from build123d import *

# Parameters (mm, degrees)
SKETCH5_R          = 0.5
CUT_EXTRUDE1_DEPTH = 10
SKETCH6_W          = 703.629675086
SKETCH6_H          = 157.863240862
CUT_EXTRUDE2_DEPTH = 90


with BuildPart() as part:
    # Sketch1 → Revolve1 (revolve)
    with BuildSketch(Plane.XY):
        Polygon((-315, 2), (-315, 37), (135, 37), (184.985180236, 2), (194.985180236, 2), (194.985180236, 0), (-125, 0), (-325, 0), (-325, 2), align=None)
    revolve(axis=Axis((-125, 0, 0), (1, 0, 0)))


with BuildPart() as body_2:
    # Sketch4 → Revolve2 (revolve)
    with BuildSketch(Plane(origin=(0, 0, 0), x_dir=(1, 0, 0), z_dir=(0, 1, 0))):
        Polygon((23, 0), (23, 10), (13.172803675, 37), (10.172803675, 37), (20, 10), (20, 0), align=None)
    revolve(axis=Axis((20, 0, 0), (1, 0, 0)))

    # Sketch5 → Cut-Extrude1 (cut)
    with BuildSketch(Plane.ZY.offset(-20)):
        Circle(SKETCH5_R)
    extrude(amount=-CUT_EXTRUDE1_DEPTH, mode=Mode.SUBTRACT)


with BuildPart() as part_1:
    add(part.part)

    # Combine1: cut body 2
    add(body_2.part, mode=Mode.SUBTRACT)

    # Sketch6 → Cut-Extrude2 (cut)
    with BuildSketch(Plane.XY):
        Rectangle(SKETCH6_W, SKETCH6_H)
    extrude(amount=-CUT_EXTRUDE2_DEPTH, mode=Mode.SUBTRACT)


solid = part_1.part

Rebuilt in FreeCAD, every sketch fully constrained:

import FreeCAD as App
import Part
import Sketcher

V = App.Vector
Q = App.Units.Quantity


def add_polygon(sketch, points):
    """Adds a closed chain of lines whose ends are joined by coincident constraints."""
    first, n = sketch.GeometryCount, len(points)
    for a, b in zip(points, points[1:] + points[:1]):
        sketch.addGeometry(Part.LineSegment(App.Vector(*a, 0), App.Vector(*b, 0)), False)
    for i in range(n):
        sketch.addConstraint(Sketcher.Constraint("Coincident", first + i, 2, first + (i + 1) % n, 1))

doc = App.newDocument("Part")
params = doc.addObject("Spreadsheet::Sheet", "Params")
for row, (alias, value) in enumerate([
    ("sketch1_width", "10 mm"),
    ("sketch1_width2", "450 mm"),
    ("sketch1_height", "35 mm"),
    ("sketch1_height2", "2 mm"),
    ("revolution_angle", "360 deg"),
    ("sketch2_width", "3 mm"),
    ("sketch2_height", "10 mm"),
    ("revolution2_angle", "360 deg"),
    ("sketch3_diameter", "1 mm"),
    ("pocket1_length", "10 mm"),
    ("pocket2_length", "90 mm"),
], start=1):
    params.set(f"A{row}", alias)
    params.set(f"B{row}", "=" + value)
    params.setAlias(f"B{row}", alias)

body = doc.addObject("PartDesign::Body", "Body")

# Sketch on XY plane
sketch1 = body.newObject("Sketcher::SketchObject", "Sketch")
sketch1.AttachmentSupport = (doc.getObject("XY_Plane"), [""])
sketch1.MapMode = "FlatFace"
add_polygon(sketch1, [(-315, 37), (-315, 2), (-325, 2), (-325, 0), (195, 0), (195, 2), (185, 2), (135, 37)])  # lines 0-7
sketch1.addConstraint([
    Sketcher.Constraint("Vertical", 0),
    Sketcher.Constraint("Horizontal", 1),
    Sketcher.Constraint("Vertical", 2),
    Sketcher.Constraint("Horizontal", 3),
    Sketcher.Constraint("Vertical", 4),
    Sketcher.Constraint("Horizontal", 5),
    Sketcher.Constraint("Horizontal", 7),
    Sketcher.Constraint("PointOnObject", 2, 2, -1),
    Sketcher.Constraint("Horizontal", 1, 2, 4, 2),
    Sketcher.Constraint("Equal", 1, 5),
    Sketcher.Constraint("DistanceX", 1, 2, 1, 1, Q("10 mm")),
    Sketcher.Constraint("DistanceX", 7, 2, 7, 1, Q("450 mm")),
    Sketcher.Constraint("DistanceY", 0, 2, 0, 1, Q("35 mm")),
    Sketcher.Constraint("DistanceY", 2, 2, 2, 1, Q("2 mm")),
    Sketcher.Constraint("Angle", 6, Q("145 deg")),
    Sketcher.Constraint("DistanceX", 0, 2, -1, 1, Q("315 mm")),
])
sketch1.setExpression("Constraints[18]", "Params.sketch1_width")
sketch1.setExpression("Constraints[19]", "Params.sketch1_width2")
sketch1.setExpression("Constraints[20]", "Params.sketch1_height")
sketch1.setExpression("Constraints[21]", "Params.sketch1_height2")
revolution = body.newObject("PartDesign::Revolution", "Revolution")
revolution.Profile = sketch1
revolution.ReferenceAxis = (sketch1, ["H_Axis"])
revolution.setExpression("Angle", "Params.revolution_angle")
body2 = doc.addObject("PartDesign::Body", "Body001")

# Sketch on XZ plane
sketch2 = body2.newObject("Sketcher::SketchObject", "Sketch001")
sketch2.AttachmentSupport = (doc.getObject("XZ_Plane001"), [""])
sketch2.MapMode = "FlatFace"
add_polygon(sketch2, [(23, 0), (23, -10), (13.2, -37), (10.2, -37), (20, -10), (20, 0)])  # lines 0-5
sketch2.addConstraint([
    Sketcher.Constraint("Vertical", 0),
    Sketcher.Constraint("Horizontal", 2),
    Sketcher.Constraint("Vertical", 4),
    Sketcher.Constraint("Horizontal", 5),
    Sketcher.Constraint("PointOnObject", 4, 2, -1),
    Sketcher.Constraint("Parallel", 1, 3),
    Sketcher.Constraint("Horizontal", 0, 2, 3, 2),
    Sketcher.Constraint("DistanceX", 2, 2, 2, 1, Q("3 mm")),
    Sketcher.Constraint("DistanceY", 0, 2, 0, 1, Q("10 mm")),
    Sketcher.Constraint("Angle", 1, Q("-110 deg")),
    Sketcher.Constraint("DistanceX", -1, 1, 0, 2, Q("23 mm")),
    Sketcher.Constraint("DistanceY", 1, 2, -1, 1, Q("37 mm")),
])
sketch2.setExpression("Constraints[13]", "Params.sketch2_width")
sketch2.setExpression("Constraints[14]", "Params.sketch2_height")
revolution2 = body2.newObject("PartDesign::Revolution", "Revolution001")
revolution2.Profile = sketch2
revolution2.ReferenceAxis = (sketch2, ["H_Axis"])
revolution2.setExpression("Angle", "Params.revolution2_angle")

# Sketch on YZ plane
sketch3 = body2.newObject("Sketcher::SketchObject", "Sketch002")
sketch3.AttachmentSupport = (doc.getObject("YZ_Plane001"), [""])
sketch3.MapMode = "FlatFace"
sketch3.AttachmentOffset = App.Placement(V(0, 0, 20), App.Rotation())
sketch3.addGeometry(Part.Circle(V(0, 0, 0), V(0, 0, 1), 0.5), False)
sketch3.addConstraint([
    Sketcher.Constraint("Coincident", 0, 3, -1, 1),
    Sketcher.Constraint("Diameter", 0, Q("1 mm")),
])
sketch3.setExpression("Constraints[1]", "Params.sketch3_diameter")
pocket1 = body2.newObject("PartDesign::Pocket", "Pocket")
pocket1.Profile = sketch3
pocket1.setExpression("Length", "Params.pocket1_length")
pocket1.Reversed = True
doc.recompute()

boolean = body.newObject("PartDesign::Boolean", "Boolean")
boolean.Type = "Cut"
boolean.addObjects([body2])

# Sketch on XY plane
sketch4 = body.newObject("Sketcher::SketchObject", "Sketch003")
sketch4.AttachmentSupport = (doc.getObject("XY_Plane"), [""])
sketch4.MapMode = "FlatFace"
add_polygon(sketch4, [(-352, 79), (-352, -79), (352, -79), (352, 79)])  # lines 0-3
sketch4.addConstraint([
    Sketcher.Constraint("Vertical", 0),
    Sketcher.Constraint("Horizontal", 1),
    Sketcher.Constraint("Vertical", 2),
    Sketcher.Constraint("Horizontal", 3),
    Sketcher.Constraint("Symmetric", 0, 2, 2, 2, -1, 1),
    Sketcher.Constraint("DistanceY", 0, 2, 0, 1, Q("157.863241 mm")),
    Sketcher.Constraint("DistanceX", 1, 1, 1, 2, Q("703.629675 mm")),
])
pocket2 = body.newObject("PartDesign::Pocket", "Pocket001")
pocket2.Profile = sketch4
pocket2.setExpression("Length", "Params.pocket2_length")

doc.recompute()
